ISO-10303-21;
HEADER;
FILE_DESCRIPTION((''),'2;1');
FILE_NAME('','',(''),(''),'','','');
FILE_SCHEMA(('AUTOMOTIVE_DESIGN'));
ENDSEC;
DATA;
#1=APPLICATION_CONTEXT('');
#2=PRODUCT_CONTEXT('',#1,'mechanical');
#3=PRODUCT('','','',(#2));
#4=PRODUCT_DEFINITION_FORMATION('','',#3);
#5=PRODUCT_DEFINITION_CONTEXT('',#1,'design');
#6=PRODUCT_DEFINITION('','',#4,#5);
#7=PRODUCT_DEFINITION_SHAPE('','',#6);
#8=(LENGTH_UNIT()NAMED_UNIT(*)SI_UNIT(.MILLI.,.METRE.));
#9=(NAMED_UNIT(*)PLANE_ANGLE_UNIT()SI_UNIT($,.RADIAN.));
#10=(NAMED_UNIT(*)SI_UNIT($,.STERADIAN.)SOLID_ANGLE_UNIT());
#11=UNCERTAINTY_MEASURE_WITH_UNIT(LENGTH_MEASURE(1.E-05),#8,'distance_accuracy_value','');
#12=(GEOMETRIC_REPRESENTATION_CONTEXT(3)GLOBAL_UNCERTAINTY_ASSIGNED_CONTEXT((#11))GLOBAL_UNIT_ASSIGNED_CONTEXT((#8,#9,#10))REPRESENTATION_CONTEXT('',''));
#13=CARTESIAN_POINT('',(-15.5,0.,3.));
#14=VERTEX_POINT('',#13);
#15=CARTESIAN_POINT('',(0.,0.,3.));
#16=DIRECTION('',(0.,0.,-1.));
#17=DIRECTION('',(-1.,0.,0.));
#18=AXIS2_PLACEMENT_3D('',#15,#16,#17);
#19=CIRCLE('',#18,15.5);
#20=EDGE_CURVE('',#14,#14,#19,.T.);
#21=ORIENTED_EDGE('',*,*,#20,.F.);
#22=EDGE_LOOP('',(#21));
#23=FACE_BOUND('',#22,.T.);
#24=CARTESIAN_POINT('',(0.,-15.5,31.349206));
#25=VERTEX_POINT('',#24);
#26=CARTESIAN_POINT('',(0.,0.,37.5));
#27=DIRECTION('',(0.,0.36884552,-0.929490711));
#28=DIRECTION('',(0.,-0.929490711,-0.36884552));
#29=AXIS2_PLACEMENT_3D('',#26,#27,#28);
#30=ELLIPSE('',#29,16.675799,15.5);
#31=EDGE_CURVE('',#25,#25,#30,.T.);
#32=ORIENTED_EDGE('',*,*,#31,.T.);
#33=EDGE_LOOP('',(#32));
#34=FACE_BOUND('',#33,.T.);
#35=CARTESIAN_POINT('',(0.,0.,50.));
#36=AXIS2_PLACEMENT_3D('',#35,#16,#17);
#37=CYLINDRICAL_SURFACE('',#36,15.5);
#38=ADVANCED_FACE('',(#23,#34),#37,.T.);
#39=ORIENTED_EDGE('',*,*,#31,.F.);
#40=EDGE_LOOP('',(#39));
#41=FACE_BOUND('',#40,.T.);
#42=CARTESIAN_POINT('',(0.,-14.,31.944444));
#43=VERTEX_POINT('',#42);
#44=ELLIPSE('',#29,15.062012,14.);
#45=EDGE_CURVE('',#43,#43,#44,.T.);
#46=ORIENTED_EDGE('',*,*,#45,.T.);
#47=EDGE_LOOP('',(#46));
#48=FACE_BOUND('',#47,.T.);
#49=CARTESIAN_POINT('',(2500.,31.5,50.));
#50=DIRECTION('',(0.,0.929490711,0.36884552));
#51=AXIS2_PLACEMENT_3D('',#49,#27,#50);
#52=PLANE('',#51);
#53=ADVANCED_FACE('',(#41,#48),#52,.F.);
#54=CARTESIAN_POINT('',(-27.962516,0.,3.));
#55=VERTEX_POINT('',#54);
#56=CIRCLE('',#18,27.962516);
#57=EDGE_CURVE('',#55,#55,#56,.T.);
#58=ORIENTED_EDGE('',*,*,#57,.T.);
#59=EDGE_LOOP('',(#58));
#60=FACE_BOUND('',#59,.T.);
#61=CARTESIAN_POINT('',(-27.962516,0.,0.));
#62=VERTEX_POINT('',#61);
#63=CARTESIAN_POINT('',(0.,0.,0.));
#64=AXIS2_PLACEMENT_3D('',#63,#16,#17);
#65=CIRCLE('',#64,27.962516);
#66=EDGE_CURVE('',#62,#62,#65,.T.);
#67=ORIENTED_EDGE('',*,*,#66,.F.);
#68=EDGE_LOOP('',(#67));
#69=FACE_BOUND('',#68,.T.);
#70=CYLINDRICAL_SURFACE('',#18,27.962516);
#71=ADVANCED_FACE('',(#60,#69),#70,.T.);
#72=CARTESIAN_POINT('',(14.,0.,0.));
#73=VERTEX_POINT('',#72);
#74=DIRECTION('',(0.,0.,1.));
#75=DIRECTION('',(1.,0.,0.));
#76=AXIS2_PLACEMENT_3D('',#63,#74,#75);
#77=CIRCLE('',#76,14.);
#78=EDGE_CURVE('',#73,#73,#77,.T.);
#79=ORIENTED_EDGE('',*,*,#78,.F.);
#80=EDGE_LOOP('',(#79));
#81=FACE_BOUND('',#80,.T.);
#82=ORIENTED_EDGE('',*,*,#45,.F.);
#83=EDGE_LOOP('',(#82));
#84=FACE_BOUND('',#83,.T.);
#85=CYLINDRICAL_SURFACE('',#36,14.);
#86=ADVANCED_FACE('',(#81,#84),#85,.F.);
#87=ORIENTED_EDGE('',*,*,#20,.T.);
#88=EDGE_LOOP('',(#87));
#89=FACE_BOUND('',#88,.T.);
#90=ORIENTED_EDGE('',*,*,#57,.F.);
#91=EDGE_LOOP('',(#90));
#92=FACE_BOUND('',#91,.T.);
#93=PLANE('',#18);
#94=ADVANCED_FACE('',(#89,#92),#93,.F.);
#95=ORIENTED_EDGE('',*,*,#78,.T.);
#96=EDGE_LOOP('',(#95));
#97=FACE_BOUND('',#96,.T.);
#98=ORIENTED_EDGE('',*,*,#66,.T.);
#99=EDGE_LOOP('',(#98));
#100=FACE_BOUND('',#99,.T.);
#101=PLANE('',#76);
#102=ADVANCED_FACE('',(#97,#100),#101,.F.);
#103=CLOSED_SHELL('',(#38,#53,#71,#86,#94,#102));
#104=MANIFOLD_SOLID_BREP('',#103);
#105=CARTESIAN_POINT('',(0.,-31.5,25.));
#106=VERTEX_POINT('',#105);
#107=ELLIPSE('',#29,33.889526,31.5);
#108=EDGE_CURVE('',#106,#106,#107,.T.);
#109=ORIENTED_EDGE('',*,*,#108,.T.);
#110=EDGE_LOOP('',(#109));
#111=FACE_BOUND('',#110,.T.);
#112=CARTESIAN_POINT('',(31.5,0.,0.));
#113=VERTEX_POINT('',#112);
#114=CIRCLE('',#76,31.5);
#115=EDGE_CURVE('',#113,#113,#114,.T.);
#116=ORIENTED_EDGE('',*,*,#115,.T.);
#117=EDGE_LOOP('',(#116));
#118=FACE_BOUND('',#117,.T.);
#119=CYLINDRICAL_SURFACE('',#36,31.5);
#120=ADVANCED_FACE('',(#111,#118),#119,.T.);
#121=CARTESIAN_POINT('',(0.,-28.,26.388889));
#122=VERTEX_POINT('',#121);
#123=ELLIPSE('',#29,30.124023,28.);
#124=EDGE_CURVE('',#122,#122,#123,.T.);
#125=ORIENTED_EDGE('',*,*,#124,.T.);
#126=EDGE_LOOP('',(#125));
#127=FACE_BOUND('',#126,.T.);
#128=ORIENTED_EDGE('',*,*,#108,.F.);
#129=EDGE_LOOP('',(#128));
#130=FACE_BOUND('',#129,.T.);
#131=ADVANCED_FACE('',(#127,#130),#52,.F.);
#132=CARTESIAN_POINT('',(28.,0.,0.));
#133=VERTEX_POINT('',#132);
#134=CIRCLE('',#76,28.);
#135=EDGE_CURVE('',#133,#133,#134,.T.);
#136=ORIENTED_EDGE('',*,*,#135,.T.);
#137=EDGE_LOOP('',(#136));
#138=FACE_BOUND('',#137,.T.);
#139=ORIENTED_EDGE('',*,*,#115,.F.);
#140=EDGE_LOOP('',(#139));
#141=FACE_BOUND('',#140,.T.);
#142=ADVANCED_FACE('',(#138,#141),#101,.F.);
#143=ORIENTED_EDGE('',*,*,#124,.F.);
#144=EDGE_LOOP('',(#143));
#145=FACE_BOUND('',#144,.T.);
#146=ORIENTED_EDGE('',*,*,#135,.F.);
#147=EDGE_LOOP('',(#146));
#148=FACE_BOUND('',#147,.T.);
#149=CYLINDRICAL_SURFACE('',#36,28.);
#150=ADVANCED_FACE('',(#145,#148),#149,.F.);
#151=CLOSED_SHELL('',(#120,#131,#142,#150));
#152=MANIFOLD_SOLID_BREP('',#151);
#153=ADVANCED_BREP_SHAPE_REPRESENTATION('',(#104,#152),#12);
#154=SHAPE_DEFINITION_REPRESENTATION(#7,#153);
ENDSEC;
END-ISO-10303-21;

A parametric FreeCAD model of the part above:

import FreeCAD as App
import Part
import Sketcher

V = App.Vector

doc = App.newDocument("Part")
body = doc.addObject("PartDesign::Body", "Body")

sketch1 = body.newObject("Sketcher::SketchObject", "Sketch")
sketch1.AttachmentSupport = (doc.getObject("XY_Plane"), [""])
sketch1.MapMode = "FlatFace"
sketch1.addGeometry([
    Part.Circle(V(0, 0, 0), V(0, 0, 1), 16),
    Part.Circle(V(0, 0, 0), V(0, 0, 1), 14),
], False)
sketch1.addConstraint([
    Sketcher.Constraint("Coincident", 0, 3, -1, 1),
    Sketcher.Constraint("Coincident", 1, 3, -1, 1),
    Sketcher.Constraint("Diameter", 0, 31.0),
    Sketcher.Constraint("Diameter", 1, 28.0),
])
pad1 = body.newObject("PartDesign::Pad", "Pad")
pad1.Profile = sketch1
pad1.Length = 50
body2 = doc.addObject("PartDesign::Body", "Body001")

sketch2 = body2.newObject("Sketcher::SketchObject", "Sketch001")
sketch2.AttachmentSupport = (doc.getObject("XY_Plane001"), [""])
sketch2.MapMode = "FlatFace"
sketch2.addGeometry([
    Part.Circle(V(0, 0, 0), V(0, 0, 1), 32),
    Part.Circle(V(0, 0, 0), V(0, 0, 1), 28),
], False)
sketch2.addConstraint([
    Sketcher.Constraint("Coincident", 0, 3, -1, 1),
    Sketcher.Constraint("Coincident", 1, 3, -1, 1),
    Sketcher.Constraint("Diameter", 0, 63.0),
    Sketcher.Constraint("Diameter", 1, 56.0),
])
pad2 = body2.newObject("PartDesign::Pad", "Pad001")
pad2.Profile = sketch2
pad2.Length = 50
body3 = doc.addObject("PartDesign::Body", "Body002")

sketch3 = body3.newObject("Sketcher::SketchObject", "Sketch002")
sketch3.AttachmentSupport = (doc.getObject("YZ_Plane002"), [""])
sketch3.MapMode = "FlatFace"
sketch3.addGeometry([
    Part.LineSegment(V(-32, 25, 0), V(32, 50, 0)),
    Part.LineSegment(V(32, 50, 0), V(-32, 50, 0)),
    Part.LineSegment(V(-32, 50, 0), V(-32, 25, 0)),
], False)
sketch3.addConstraint([
    Sketcher.Constraint("Coincident", 0, 2, 1, 1),
    Sketcher.Constraint("Coincident", 1, 2, 2, 1),
    Sketcher.Constraint("Coincident", 2, 2, 0, 1),
    Sketcher.Constraint("Horizontal", 1),
    Sketcher.Constraint("Vertical", 2),
    Sketcher.Constraint("DistanceX", 1, 2, 1, 1, 63.0),
    Sketcher.Constraint("DistanceY", 2, 2, 2, 1, 25.0),
    Sketcher.Constraint("DistanceY", -1, 1, 0, 2, 50.0),
    Sketcher.Constraint("DistanceX", -1, 1, 0, 2, 31.5),
])
pad3 = body3.newObject("PartDesign::Pad", "Pad002")
pad3.Profile = sketch3
pad3.Type = "TwoLengths"
pad3.Length = 2500
pad3.Length2 = 10216
doc.recompute()

body4 = doc.addObject("PartDesign::Body", "Body003")
body4.BaseFeature = body3
boolean = body.newObject("PartDesign::Boolean", "Boolean")
boolean.Type = "Cut"
boolean.addObjects([body4])
doc.recompute()

sketch4 = body.newObject("Sketcher::SketchObject", "Sketch003")
sketch4.AttachmentSupport = (doc.getObject("XY_Plane"), [""])
sketch4.MapMode = "FlatFace"
sketch4.addGeometry([
    Part.Circle(V(0, 0, 0), V(0, 0, 1), 28),
    Part.Circle(V(0, 0, 0), V(0, 0, 1), 16),
], False)
sketch4.addConstraint([
    Sketcher.Constraint("Coincident", 0, 3, -1, 1),
    Sketcher.Constraint("Coincident", 1, 3, -1, 1),
    Sketcher.Constraint("Diameter", 1, 31.0),
    Sketcher.Constraint("Diameter", 0, 55.925032),
])
pad4 = body.newObject("PartDesign::Pad", "Pad003")
pad4.Profile = sketch4
pad4.Length = 3
doc.recompute()

boolean2 = body2.newObject("PartDesign::Boolean", "Boolean001")
boolean2.Type = "Cut"
boolean2.addObjects([body3])

doc.recompute()
